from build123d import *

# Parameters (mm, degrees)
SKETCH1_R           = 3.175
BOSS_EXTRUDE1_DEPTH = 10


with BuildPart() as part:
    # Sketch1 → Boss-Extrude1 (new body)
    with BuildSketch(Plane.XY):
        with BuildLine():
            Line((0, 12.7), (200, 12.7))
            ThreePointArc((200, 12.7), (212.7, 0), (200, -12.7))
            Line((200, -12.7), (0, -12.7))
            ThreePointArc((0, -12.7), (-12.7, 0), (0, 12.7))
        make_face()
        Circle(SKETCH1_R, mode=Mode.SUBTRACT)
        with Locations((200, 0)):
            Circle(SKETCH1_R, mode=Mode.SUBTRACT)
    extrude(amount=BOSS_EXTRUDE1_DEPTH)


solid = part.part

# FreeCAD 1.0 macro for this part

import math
import FreeCAD as App
import Part
import Sketcher

V = App.Vector

doc = App.newDocument("Part")
body = doc.addObject("PartDesign::Body", "Body")

# Sketch on XY plane
sketch1 = doc.addObject("Sketcher::SketchObject", "Sketch")
body.addObject(sketch1)
sketch1.AttachmentSupport = (doc.XY_Plane, [""])
sketch1.MapMode = "FlatFace"
sketch1.addGeometry([
    Part.LineSegment(V(200, 12.7, 0), V(0, 12.7, 0)),  # 0
    Part.ArcOfCircle(Part.Circle(V(0, 0, 0), V(0, 0, 1), 12.7), math.radians(90), math.radians(270)),  # 1
    Part.LineSegment(V(0, -12.7, 0), V(200, -12.7, 0)),  # 2
    Part.ArcOfCircle(Part.Circle(V(200, 0, 0), V(0, 0, 1), 12.7), math.radians(-90), math.radians(90)),  # 3
    Part.Circle(V(200, 0, 0), V(0, 0, 1), 3.2),  # 4
    Part.Circle(V(0, 0, 0), V(0, 0, 1), 3.2),  # 5
], False)
sketch1.addConstraint([
    Sketcher.Constraint("Tangent", 0, 2, 1, 1),
    Sketcher.Constraint("Tangent", 1, 2, 2, 1),
    Sketcher.Constraint("Tangent", 2, 2, 3, 1),
    Sketcher.Constraint("Tangent", 3, 2, 0, 1),
    Sketcher.Constraint("Horizontal", 0),
    Sketcher.Constraint("Horizontal", 2),
    Sketcher.Constraint("Coincident", 1, 3, -1, 1),
    Sketcher.Constraint("Coincident", 5, 3, -1, 1),
    Sketcher.Constraint("Coincident", 4, 3, 3, 3),
    Sketcher.Constraint("Equal", 4, 5),
    Sketcher.Constraint("Radius", 1, 12.7),
    Sketcher.Constraint("Diameter", 4, 6.35),
    Sketcher.Constraint("DistanceX", 0, 2, 0, 1, 200.0),
])
pad1 = doc.addObject("PartDesign::Pad", "Pad")
body.addObject(pad1)
pad1.Profile = sketch1
pad1.Length = 10

doc.recompute()
